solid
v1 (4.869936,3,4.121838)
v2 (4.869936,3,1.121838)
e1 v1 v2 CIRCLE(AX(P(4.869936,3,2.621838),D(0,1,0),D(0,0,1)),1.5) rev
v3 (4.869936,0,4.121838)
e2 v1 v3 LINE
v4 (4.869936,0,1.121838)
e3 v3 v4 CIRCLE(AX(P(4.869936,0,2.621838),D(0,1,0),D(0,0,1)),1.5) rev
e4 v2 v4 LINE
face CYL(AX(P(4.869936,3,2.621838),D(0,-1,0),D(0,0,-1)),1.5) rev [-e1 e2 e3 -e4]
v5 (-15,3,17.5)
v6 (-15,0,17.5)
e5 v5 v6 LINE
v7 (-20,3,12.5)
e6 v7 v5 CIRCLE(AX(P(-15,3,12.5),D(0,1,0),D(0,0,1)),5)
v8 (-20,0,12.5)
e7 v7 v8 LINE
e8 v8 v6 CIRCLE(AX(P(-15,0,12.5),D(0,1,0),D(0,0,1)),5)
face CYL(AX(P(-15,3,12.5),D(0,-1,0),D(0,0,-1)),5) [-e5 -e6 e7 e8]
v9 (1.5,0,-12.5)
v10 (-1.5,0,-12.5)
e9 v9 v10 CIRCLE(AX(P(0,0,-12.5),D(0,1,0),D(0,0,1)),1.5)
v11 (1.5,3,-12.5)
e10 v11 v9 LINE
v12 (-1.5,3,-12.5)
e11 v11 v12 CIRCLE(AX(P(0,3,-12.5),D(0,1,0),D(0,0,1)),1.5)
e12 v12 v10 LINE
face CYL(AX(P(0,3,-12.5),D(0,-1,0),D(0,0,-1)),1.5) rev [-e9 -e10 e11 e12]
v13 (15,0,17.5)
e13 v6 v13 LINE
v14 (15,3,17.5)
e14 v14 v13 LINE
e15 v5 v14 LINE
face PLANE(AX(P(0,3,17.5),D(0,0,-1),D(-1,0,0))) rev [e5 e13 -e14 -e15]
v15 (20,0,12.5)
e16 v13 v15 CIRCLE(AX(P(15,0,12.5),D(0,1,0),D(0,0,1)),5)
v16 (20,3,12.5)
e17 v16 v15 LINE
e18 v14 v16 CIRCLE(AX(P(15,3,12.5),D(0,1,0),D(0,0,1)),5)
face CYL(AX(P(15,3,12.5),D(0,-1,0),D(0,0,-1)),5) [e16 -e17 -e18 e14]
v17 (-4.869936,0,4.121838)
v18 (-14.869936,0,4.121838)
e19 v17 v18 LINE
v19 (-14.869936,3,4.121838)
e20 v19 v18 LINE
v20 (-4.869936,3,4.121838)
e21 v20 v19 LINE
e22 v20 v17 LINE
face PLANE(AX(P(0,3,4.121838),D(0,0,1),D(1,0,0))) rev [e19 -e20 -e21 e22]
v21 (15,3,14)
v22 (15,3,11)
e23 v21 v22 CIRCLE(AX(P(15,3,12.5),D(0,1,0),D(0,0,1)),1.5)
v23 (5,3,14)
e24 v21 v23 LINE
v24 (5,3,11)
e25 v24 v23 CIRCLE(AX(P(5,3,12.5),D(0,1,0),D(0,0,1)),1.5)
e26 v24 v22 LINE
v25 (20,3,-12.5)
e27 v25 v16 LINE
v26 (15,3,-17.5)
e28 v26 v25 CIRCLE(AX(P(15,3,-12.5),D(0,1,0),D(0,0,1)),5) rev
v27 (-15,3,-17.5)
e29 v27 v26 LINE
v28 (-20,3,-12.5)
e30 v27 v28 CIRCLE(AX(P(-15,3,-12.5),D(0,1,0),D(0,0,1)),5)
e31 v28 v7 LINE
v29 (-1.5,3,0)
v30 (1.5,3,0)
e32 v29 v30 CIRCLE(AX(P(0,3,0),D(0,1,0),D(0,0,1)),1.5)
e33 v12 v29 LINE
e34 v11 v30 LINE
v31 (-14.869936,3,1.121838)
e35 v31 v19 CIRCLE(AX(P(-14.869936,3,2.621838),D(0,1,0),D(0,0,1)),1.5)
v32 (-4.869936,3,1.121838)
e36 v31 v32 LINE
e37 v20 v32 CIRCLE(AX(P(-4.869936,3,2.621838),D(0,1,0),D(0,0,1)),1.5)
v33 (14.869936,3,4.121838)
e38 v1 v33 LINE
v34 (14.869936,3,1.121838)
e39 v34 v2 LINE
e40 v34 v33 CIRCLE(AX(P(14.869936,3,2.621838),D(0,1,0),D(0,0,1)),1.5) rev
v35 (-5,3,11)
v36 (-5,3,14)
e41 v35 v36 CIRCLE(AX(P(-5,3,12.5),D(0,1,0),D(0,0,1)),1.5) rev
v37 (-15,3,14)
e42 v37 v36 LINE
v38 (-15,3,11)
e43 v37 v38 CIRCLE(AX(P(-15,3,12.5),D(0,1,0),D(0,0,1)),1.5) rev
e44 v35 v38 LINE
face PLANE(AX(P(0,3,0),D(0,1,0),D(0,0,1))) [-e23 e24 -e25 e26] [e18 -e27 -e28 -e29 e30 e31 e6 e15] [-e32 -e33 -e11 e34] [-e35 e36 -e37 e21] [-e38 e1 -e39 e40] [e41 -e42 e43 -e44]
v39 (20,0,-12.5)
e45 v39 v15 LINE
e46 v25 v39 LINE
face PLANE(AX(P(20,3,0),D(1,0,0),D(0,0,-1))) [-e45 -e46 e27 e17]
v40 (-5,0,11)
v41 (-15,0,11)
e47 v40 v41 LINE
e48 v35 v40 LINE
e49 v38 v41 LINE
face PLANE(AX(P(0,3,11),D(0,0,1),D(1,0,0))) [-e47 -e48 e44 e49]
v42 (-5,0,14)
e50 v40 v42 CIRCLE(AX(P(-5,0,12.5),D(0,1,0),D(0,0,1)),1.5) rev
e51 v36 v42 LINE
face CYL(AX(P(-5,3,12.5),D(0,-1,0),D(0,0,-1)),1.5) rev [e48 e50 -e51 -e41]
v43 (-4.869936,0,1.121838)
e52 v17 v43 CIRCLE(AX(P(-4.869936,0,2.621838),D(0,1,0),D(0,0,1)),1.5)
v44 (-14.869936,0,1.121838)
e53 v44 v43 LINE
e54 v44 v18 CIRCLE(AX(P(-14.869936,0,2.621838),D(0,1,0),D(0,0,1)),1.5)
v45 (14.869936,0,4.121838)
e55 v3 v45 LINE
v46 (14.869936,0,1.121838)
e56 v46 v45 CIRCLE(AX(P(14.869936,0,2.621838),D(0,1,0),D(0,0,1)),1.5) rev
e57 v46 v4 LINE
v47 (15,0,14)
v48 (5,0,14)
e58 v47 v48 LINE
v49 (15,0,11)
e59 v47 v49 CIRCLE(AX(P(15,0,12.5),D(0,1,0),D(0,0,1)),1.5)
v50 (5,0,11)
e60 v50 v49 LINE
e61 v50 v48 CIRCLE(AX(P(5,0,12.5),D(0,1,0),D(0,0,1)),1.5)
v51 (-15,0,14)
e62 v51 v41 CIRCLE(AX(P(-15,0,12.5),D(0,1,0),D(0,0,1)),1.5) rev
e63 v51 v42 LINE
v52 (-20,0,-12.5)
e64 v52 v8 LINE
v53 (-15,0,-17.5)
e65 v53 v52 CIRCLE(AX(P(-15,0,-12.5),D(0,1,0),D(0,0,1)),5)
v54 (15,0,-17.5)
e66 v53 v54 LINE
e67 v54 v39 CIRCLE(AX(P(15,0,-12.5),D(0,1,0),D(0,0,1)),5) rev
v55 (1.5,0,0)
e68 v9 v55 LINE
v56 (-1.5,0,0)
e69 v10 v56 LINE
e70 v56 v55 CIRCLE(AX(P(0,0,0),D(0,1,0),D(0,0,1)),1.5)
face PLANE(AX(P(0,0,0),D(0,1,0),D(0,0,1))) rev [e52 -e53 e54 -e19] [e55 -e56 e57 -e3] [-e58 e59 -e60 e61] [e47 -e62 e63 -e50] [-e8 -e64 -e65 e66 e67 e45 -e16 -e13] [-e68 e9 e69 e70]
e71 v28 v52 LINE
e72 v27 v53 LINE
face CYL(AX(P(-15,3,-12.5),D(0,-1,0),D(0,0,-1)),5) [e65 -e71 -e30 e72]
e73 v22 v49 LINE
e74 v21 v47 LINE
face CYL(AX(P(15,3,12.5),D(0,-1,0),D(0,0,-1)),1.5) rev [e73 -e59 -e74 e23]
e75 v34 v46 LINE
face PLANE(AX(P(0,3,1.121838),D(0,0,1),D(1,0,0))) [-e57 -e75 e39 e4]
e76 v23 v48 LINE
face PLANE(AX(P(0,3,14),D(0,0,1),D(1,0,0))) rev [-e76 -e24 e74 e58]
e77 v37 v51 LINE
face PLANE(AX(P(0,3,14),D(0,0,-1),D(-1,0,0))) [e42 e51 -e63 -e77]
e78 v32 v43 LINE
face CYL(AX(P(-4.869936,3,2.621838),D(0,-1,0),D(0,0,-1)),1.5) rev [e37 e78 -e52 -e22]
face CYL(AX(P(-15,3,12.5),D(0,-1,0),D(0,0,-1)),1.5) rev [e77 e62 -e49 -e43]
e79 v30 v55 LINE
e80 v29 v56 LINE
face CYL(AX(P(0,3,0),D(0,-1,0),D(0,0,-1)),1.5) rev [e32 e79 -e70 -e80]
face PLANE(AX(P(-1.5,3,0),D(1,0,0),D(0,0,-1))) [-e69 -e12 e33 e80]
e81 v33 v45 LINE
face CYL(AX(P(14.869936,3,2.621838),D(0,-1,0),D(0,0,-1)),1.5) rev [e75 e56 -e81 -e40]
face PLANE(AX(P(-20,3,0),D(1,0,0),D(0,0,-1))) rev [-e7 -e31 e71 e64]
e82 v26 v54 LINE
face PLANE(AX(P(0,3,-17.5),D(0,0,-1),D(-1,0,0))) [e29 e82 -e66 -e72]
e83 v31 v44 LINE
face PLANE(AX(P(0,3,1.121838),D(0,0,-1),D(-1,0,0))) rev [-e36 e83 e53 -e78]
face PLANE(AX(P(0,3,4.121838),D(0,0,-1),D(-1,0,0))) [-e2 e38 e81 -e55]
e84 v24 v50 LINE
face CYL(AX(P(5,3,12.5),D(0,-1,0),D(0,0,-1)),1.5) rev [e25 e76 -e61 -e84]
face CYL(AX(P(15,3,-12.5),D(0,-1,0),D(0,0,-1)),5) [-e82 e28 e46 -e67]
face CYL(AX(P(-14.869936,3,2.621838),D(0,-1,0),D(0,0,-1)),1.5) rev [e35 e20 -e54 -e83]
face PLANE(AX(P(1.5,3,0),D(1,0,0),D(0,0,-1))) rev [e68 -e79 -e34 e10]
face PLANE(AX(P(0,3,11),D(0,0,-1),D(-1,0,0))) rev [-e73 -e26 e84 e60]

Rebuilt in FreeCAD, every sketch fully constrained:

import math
import FreeCAD as App
import Part
import Sketcher

doc = App.newDocument("Part")
body = doc.addObject("PartDesign::Body", "Body")

sketch1 = body.newObject("Sketcher::SketchObject", "Sketch")
sketch1.AttachmentSupport = (doc.getObject("XZ_Plane"), [""])
sketch1.MapMode = "FlatFace"
sketch1.addGeometry(Part.LineSegment(App.Vector(15, -17.5, 0), App.Vector(-15, -17.5, 0)), False)
sketch1.addGeometry(Part.ArcOfCircle(Part.Circle(App.Vector(-15, -12.5, 0), App.Vector(0, 0, 1), 5), math.radians(180), math.radians(270)), False)
sketch1.addGeometry(Part.LineSegment(App.Vector(-20, -12.5, 0), App.Vector(-20, 12.5, 0)), False)
sketch1.addGeometry(Part.ArcOfCircle(Part.Circle(App.Vector(-15, 12.5, 0), App.Vector(0, 0, 1), 5), math.radians(90), math.radians(180)), False)
sketch1.addGeometry(Part.LineSegment(App.Vector(-15, 17.5, 0), App.Vector(15, 17.5, 0)), False)
sketch1.addGeometry(Part.ArcOfCircle(Part.Circle(App.Vector(15, 12.5, 0), App.Vector(0, 0, 1), 5), math.radians(0), math.radians(90)), False)
sketch1.addGeometry(Part.LineSegment(App.Vector(20, 12.5, 0), App.Vector(20, -12.5, 0)), False)
sketch1.addGeometry(Part.ArcOfCircle(Part.Circle(App.Vector(15, -12.5, 0), App.Vector(0, 0, 1), 5), math.radians(-90), math.radians(0)), False)
sketch1.addGeometry(Part.LineSegment(App.Vector(5, 11, 0), App.Vector(15, 11, 0)), False)
sketch1.addGeometry(Part.ArcOfCircle(Part.Circle(App.Vector(15, 12.5, 0), App.Vector(0, 0, 1), 1.5), math.radians(-90), math.radians(90)), False)
sketch1.addGeometry(Part.LineSegment(App.Vector(15, 14, 0), App.Vector(5, 14, 0)), False)
sketch1.addGeometry(Part.ArcOfCircle(Part.Circle(App.Vector(5, 12.5, 0), App.Vector(0, 0, 1), 1.5), math.radians(90), math.radians(270)), False)
sketch1.addGeometry(Part.ArcOfCircle(Part.Circle(App.Vector(4.9, 2.6, 0), App.Vector(0, 0, 1), 1.5), math.radians(90), math.radians(270)), False)
sketch1.addGeometry(Part.LineSegment(App.Vector(4.9, 1.1, 0), App.Vector(14.9, 1.1, 0)), False)
sketch1.addGeometry(Part.ArcOfCircle(Part.Circle(App.Vector(14.9, 2.6, 0), App.Vector(0, 0, 1), 1.5), math.radians(-90), math.radians(90)), False)
sketch1.addGeometry(Part.LineSegment(App.Vector(14.9, 4.1, 0), App.Vector(4.9, 4.1, 0)), False)
sketch1.addGeometry(Part.ArcOfCircle(Part.Circle(App.Vector(-15, 12.5, 0), App.Vector(0, 0, 1), 1.5), math.radians(90), math.radians(270)), False)
sketch1.addGeometry(Part.LineSegment(App.Vector(-15, 11, 0), App.Vector(-5, 11, 0)), False)
sketch1.addGeometry(Part.ArcOfCircle(Part.Circle(App.Vector(-5, 12.5, 0), App.Vector(0, 0, 1), 1.5), math.radians(-90), math.radians(90)), False)
sketch1.addGeometry(Part.LineSegment(App.Vector(-5, 14, 0), App.Vector(-15, 14, 0)), False)
sketch1.addGeometry(Part.LineSegment(App.Vector(-14.9, 1.1, 0), App.Vector(-4.9, 1.1, 0)), False)
sketch1.addGeometry(Part.ArcOfCircle(Part.Circle(App.Vector(-4.9, 2.6, 0), App.Vector(0, 0, 1), 1.5), math.radians(-90), math.radians(90)), False)
sketch1.addGeometry(Part.LineSegment(App.Vector(-4.9, 4.1, 0), App.Vector(-14.9, 4.1, 0)), False)
sketch1.addGeometry(Part.ArcOfCircle(Part.Circle(App.Vector(-14.9, 2.6, 0), App.Vector(0, 0, 1), 1.5), math.radians(90), math.radians(270)), False)
sketch1.addGeometry(Part.ArcOfCircle(Part.Circle(App.Vector(0, -12.5, 0), App.Vector(0, 0, 1), 1.5), math.radians(180), math.radians(360)), False)
sketch1.addGeometry(Part.LineSegment(App.Vector(1.5, -12.5, 0), App.Vector(1.5, 0, 0)), False)
sketch1.addGeometry(Part.ArcOfCircle(Part.Circle(App.Vector(0, 0, 0), App.Vector(0, 0, 1), 1.5), math.radians(0), math.radians(180)), False)
sketch1.addGeometry(Part.LineSegment(App.Vector(-1.5, 0, 0), App.Vector(-1.5, -12.5, 0)), False)
sketch1.addConstraint(Sketcher.Constraint("Tangent", 0, 2, 1, 2))
sketch1.addConstraint(Sketcher.Constraint("Tangent", 1, 1, 2, 1))
sketch1.addConstraint(Sketcher.Constraint("Tangent", 2, 2, 3, 2))
sketch1.addConstraint(Sketcher.Constraint("Tangent", 3, 1, 4, 1))
sketch1.addConstraint(Sketcher.Constraint("Tangent", 4, 2, 5, 2))
sketch1.addConstraint(Sketcher.Constraint("Tangent", 5, 1, 6, 1))
sketch1.addConstraint(Sketcher.Constraint("Tangent", 6, 2, 7, 2))
sketch1.addConstraint(Sketcher.Constraint("Tangent", 7, 1, 0, 1))
sketch1.addConstraint(Sketcher.Constraint("Tangent", 8, 2, 9, 1))
sketch1.addConstraint(Sketcher.Constraint("Tangent", 9, 2, 10, 1))
sketch1.addConstraint(Sketcher.Constraint("Tangent", 10, 2, 11, 1))
sketch1.addConstraint(Sketcher.Constraint("Tangent", 11, 2, 8, 1))
sketch1.addConstraint(Sketcher.Constraint("Tangent", 12, 2, 13, 1))
sketch1.addConstraint(Sketcher.Constraint("Tangent", 13, 2, 14, 1))
sketch1.addConstraint(Sketcher.Constraint("Tangent", 14, 2, 15, 1))
sketch1.addConstraint(Sketcher.Constraint("Tangent", 15, 2, 12, 1))
sketch1.addConstraint(Sketcher.Constraint("Tangent", 16, 2, 17, 1))
sketch1.addConstraint(Sketcher.Constraint("Tangent", 17, 2, 18, 1))
sketch1.addConstraint(Sketcher.Constraint("Tangent", 18, 2, 19, 1))
sketch1.addConstraint(Sketcher.Constraint("Tangent", 19, 2, 16, 1))
sketch1.addConstraint(Sketcher.Constraint("Tangent", 20, 2, 21, 1))
sketch1.addConstraint(Sketcher.Constraint("Tangent", 21, 2, 22, 1))
sketch1.addConstraint(Sketcher.Constraint("Tangent", 22, 2, 23, 1))
sketch1.addConstraint(Sketcher.Constraint("Tangent", 23, 2, 20, 1))
sketch1.addConstraint(Sketcher.Constraint("Tangent", 24, 2, 25, 1))
sketch1.addConstraint(Sketcher.Constraint("Tangent", 25, 2, 26, 1))
sketch1.addConstraint(Sketcher.Constraint("Tangent", 26, 2, 27, 1))
sketch1.addConstraint(Sketcher.Constraint("Tangent", 27, 2, 24, 1))
sketch1.addConstraint(Sketcher.Constraint("Horizontal", 0))
sketch1.addConstraint(Sketcher.Constraint("Vertical", 2))
sketch1.addConstraint(Sketcher.Constraint("Horizontal", 4))
sketch1.addConstraint(Sketcher.Constraint("Vertical", 6))
sketch1.addConstraint(Sketcher.Constraint("Horizontal", 8))
sketch1.addConstraint(Sketcher.Constraint("Horizontal", 10))
sketch1.addConstraint(Sketcher.Constraint("Horizontal", 13))
sketch1.addConstraint(Sketcher.Constraint("Horizontal", 15))
sketch1.addConstraint(Sketcher.Constraint("Horizontal", 17))
sketch1.addConstraint(Sketcher.Constraint("Horizontal", 19))
sketch1.addConstraint(Sketcher.Constraint("Horizontal", 20))
sketch1.addConstraint(Sketcher.Constraint("Horizontal", 22))
sketch1.addConstraint(Sketcher.Constraint("Vertical", 25))
sketch1.addConstraint(Sketcher.Constraint("Vertical", 27))
sketch1.addConstraint(Sketcher.Constraint("Coincident", 26, 3, -1, 1))
sketch1.addConstraint(Sketcher.Constraint("Coincident", 9, 3, 5, 3))
sketch1.addConstraint(Sketcher.Constraint("Coincident", 16, 3, 3, 3))
sketch1.addConstraint(Sketcher.Constraint("Equal", 1, 3))
sketch1.addConstraint(Sketcher.Constraint("Equal", 3, 5))
sketch1.addConstraint(Sketcher.Constraint("Equal", 5, 7))
sketch1.addConstraint(Sketcher.Constraint("Equal", 11, 12))
sketch1.addConstraint(Sketcher.Constraint("Equal", 14, 16))
sketch1.addConstraint(Sketcher.Constraint("Equal", 18, 21))
sketch1.addConstraint(Sketcher.Constraint("Equal", 23, 24))
sketch1.addConstraint(Sketcher.Constraint("Symmetric", 1, 3, 5, 3, -1, 1))
sketch1.addConstraint(Sketcher.Constraint("Symmetric", 12, 3, 21, 3, -2))
sketch1.addConstraint(Sketcher.Constraint("Horizontal", 7, 3, 24, 3))
sketch1.addConstraint(Sketcher.Constraint("Equal", 10, 13))
sketch1.addConstraint(Sketcher.Constraint("Equal", 15, 17))
sketch1.addConstraint(Sketcher.Constraint("Equal", 19, 20))
sketch1.addConstraint(Sketcher.Constraint("Radius", 1, 5.0))
sketch1.addConstraint(Sketcher.Constraint("Radius", 9, 1.5))
sketch1.addConstraint(Sketcher.Constraint("DistanceX", 0, 2, 0, 1, 30.0))
sketch1.addConstraint(Sketcher.Constraint("DistanceX", 8, 1, 8, 2, 10.0))
sketch1.addConstraint(Sketcher.Constraint("DistanceY", 2, 1, 2, 2, 25.0))
sketch1.addConstraint(Sketcher.Constraint("DistanceY", -1, 1, 12, 3, 2.621838))
sketch1.addConstraint(Sketcher.Constraint("DistanceX", -1, 1, 12, 3, 4.869936))
pad1 = body.newObject("PartDesign::Pad", "Pad")
pad1.Profile = sketch1
pad1.Length = 3
pad1.Reversed = True

doc.recompute()
